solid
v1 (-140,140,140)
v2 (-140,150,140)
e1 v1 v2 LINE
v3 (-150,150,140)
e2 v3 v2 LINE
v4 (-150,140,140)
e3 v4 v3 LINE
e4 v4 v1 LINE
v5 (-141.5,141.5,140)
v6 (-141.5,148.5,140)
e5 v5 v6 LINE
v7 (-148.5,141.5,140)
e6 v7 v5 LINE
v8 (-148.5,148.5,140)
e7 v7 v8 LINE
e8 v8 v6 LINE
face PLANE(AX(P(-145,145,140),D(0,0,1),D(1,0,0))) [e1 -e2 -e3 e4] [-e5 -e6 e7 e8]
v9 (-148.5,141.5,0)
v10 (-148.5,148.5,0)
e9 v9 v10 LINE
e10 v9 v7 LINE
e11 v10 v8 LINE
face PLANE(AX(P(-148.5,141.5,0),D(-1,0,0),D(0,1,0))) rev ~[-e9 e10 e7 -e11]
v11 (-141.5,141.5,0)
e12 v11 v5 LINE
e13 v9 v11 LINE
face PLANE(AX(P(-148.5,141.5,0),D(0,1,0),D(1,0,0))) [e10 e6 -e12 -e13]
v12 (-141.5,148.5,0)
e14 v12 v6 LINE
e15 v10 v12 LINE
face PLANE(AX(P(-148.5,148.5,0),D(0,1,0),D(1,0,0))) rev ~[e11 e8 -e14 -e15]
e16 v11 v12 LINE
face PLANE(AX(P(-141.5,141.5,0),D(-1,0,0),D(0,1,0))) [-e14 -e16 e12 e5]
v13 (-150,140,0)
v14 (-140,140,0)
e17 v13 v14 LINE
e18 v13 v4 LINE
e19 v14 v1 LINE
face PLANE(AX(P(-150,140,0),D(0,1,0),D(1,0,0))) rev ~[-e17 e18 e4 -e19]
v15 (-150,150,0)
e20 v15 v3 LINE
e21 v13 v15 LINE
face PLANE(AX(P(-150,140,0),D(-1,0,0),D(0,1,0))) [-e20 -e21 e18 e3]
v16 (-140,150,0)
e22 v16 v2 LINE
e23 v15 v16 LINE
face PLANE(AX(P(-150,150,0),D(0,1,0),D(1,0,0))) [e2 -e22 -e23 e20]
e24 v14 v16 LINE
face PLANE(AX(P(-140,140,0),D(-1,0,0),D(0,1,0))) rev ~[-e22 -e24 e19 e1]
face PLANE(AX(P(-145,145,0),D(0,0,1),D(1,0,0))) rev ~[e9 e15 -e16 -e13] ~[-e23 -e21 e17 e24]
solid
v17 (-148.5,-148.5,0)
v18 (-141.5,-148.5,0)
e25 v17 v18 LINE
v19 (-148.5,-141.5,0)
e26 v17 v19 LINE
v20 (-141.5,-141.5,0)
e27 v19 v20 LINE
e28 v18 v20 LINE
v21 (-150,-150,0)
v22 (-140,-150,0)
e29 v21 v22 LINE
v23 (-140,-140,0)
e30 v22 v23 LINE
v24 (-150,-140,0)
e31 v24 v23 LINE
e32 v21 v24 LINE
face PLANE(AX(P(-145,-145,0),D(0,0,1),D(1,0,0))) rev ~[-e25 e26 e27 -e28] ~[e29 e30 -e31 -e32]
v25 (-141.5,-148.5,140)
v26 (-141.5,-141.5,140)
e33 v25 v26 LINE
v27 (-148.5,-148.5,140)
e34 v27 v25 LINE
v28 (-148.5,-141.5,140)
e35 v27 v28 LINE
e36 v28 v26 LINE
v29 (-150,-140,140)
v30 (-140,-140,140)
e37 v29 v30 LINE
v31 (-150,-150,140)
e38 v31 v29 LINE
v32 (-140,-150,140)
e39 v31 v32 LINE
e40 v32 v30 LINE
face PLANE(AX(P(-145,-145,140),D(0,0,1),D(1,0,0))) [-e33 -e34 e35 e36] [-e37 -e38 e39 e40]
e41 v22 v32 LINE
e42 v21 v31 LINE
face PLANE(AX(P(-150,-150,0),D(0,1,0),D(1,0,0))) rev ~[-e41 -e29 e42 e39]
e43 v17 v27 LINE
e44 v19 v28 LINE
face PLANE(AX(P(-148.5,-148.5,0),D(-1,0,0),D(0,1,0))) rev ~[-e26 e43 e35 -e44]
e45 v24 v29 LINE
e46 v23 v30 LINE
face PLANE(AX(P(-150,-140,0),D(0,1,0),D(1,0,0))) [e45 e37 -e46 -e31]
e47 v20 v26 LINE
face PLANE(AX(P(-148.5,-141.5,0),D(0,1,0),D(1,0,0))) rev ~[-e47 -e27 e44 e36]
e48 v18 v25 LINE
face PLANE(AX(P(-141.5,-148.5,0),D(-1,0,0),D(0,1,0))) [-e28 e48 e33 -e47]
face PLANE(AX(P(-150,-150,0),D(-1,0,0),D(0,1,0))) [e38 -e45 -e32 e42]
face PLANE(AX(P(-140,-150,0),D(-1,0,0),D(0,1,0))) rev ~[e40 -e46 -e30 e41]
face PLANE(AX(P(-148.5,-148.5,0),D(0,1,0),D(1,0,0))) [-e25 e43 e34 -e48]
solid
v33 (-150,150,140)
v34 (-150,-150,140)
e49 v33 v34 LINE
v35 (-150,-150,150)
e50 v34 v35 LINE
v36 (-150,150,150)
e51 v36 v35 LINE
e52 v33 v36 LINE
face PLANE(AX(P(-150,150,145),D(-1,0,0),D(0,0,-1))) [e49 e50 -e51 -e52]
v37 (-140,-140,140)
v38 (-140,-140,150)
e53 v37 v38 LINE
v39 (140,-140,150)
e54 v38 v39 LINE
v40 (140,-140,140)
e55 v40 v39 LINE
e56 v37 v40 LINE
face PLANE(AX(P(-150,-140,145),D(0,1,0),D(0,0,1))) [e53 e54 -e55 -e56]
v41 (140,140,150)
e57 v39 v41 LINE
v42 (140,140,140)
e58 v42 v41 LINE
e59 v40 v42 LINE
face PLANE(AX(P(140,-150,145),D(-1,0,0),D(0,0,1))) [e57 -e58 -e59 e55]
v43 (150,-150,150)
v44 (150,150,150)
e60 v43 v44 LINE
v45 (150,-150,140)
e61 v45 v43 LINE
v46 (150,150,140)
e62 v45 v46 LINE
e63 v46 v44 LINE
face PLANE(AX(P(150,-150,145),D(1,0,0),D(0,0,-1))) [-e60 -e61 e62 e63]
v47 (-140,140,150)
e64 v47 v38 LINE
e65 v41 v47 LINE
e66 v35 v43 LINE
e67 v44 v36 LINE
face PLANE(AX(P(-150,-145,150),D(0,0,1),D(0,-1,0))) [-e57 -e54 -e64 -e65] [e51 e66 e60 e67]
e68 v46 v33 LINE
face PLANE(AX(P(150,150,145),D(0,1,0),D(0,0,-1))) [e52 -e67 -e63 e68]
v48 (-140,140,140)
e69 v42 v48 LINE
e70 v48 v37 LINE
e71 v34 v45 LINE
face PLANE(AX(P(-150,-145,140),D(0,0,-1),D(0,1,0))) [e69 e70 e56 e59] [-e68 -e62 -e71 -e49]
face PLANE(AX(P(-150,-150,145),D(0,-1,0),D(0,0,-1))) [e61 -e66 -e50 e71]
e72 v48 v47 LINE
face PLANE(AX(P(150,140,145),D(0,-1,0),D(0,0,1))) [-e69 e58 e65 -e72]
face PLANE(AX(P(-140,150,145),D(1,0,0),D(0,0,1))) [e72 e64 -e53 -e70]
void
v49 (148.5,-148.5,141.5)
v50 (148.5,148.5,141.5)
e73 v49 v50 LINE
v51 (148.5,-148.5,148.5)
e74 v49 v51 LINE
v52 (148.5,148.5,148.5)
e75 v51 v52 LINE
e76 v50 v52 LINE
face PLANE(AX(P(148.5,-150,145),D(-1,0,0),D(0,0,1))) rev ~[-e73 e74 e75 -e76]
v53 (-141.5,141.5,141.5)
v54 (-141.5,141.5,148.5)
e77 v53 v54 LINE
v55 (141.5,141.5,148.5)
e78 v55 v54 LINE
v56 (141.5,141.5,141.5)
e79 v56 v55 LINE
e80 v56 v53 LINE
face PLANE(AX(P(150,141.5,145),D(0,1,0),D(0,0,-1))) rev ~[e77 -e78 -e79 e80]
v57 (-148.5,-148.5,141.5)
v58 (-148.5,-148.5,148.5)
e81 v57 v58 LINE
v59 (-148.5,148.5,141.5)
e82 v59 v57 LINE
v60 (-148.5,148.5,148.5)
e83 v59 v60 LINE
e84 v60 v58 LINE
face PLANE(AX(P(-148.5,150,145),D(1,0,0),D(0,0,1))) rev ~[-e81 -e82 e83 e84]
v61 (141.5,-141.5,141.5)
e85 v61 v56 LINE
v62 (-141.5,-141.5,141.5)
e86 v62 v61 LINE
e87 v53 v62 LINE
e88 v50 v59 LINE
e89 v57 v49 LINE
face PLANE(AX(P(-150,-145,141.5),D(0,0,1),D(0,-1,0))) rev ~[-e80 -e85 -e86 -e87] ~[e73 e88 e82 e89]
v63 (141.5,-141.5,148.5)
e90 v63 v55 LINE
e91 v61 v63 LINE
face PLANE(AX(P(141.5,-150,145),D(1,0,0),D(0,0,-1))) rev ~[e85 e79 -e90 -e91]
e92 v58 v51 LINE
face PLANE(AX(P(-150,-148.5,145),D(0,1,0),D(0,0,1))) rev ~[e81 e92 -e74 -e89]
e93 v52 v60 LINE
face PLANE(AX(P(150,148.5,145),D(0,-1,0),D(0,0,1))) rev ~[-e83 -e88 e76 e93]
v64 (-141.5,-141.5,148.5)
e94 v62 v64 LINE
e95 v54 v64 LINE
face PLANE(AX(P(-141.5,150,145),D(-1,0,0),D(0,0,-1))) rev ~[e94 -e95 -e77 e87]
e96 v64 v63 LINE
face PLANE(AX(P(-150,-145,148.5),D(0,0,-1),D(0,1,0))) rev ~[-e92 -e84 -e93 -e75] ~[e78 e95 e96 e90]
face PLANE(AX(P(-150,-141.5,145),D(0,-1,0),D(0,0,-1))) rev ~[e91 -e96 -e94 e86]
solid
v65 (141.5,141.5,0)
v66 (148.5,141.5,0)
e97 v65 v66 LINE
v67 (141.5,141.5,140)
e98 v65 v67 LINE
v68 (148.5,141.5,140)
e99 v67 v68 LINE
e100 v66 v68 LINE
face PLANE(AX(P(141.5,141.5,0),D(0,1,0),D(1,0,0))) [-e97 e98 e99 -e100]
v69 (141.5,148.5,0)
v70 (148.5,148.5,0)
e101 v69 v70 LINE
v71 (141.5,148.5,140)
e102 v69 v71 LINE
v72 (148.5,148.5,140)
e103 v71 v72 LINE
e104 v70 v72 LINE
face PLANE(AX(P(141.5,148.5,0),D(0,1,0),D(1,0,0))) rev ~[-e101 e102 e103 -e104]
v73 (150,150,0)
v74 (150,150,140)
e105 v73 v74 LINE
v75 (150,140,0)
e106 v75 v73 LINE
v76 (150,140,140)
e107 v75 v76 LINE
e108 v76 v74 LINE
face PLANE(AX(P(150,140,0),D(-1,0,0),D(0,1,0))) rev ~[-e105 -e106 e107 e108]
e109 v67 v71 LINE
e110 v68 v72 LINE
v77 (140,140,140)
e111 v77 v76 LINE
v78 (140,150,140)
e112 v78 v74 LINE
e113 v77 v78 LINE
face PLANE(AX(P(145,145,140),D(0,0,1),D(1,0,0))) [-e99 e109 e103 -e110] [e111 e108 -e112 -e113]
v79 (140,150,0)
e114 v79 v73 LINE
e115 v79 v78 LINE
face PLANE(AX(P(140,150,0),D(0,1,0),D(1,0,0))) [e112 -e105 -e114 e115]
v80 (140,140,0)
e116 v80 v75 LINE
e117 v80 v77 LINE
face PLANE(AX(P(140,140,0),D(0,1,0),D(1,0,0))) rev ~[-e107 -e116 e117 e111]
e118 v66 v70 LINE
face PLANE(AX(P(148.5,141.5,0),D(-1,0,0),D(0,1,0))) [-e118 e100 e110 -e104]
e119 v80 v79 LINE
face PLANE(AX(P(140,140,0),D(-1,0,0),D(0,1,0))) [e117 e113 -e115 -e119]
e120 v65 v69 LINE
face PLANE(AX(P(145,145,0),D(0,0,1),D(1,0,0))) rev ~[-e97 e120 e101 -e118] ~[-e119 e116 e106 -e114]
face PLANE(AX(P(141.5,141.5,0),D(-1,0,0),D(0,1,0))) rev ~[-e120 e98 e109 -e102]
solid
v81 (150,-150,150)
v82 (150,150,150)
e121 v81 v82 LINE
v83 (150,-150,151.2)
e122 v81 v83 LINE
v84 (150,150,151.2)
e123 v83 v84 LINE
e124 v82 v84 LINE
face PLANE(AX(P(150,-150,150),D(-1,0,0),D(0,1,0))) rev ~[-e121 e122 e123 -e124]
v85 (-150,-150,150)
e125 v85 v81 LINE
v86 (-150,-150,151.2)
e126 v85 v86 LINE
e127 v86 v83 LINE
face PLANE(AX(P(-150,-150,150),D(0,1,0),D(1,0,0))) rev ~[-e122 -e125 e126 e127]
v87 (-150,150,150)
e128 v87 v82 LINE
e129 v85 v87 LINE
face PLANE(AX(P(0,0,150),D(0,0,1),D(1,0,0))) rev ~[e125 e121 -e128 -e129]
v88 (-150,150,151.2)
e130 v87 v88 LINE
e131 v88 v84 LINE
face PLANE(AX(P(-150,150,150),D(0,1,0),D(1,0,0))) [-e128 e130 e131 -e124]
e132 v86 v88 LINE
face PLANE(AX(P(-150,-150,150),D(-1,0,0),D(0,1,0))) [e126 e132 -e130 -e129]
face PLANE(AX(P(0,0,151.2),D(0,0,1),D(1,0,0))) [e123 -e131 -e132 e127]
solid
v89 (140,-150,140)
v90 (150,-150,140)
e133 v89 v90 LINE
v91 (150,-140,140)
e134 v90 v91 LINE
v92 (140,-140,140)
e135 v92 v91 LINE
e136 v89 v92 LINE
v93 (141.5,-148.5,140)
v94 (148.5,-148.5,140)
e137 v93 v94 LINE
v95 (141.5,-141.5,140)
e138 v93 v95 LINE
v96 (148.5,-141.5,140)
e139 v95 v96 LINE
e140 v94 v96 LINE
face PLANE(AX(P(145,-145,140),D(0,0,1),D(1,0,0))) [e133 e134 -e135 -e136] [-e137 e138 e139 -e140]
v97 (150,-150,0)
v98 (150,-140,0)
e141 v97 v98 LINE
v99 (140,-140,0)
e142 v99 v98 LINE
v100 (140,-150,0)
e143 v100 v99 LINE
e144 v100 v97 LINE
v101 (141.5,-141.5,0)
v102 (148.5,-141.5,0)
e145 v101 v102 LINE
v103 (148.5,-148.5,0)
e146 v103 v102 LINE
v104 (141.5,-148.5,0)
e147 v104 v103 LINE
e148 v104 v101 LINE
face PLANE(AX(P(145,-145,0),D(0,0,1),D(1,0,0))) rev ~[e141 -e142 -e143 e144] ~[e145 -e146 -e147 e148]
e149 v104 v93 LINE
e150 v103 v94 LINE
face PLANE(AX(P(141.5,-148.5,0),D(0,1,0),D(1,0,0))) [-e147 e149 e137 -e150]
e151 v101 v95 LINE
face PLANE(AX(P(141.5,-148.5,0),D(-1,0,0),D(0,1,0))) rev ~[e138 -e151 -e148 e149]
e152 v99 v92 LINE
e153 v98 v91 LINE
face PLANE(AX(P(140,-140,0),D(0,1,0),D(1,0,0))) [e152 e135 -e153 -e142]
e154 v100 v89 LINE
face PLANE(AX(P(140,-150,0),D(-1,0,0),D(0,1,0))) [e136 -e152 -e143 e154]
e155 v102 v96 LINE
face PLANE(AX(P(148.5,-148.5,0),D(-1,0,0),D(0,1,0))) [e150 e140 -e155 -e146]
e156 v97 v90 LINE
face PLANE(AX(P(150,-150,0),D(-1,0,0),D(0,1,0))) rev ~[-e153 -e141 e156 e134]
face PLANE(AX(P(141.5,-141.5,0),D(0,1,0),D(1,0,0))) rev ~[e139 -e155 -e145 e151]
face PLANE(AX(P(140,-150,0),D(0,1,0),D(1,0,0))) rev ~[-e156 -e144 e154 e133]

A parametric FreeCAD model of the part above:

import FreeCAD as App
import Part
import Sketcher
from FreeCAD import Vector


def add_polygon(sketch, points):
    """Adds a closed chain of lines whose ends are joined by coincident constraints."""
    first, n = sketch.GeometryCount, len(points)
    for a, b in zip(points, points[1:] + points[:1]):
        sketch.addGeometry(Part.LineSegment(App.Vector(*a, 0), App.Vector(*b, 0)), False)
    for i in range(n):
        sketch.addConstraint(Sketcher.Constraint("Coincident", first + i, 2, first + (i + 1) % n, 1))

doc = App.newDocument("Part")
body = doc.addObject("PartDesign::Body", "Body")

# Sketch on XY plane
sketch1 = body.newObject("Sketcher::SketchObject", "Sketch")
sketch1.AttachmentSupport = (doc.getObject("XY_Plane"), [""])
sketch1.MapMode = "FlatFace"
add_polygon(sketch1, [(-150, 150), (-150, 140), (-140, 140), (-140, 150)])  # lines 0-3
add_polygon(sketch1, [(-142, 142), (-148, 142), (-148, 148), (-142, 148)])  # lines 4-7
sketch1.addConstraint([
    Sketcher.Constraint("Vertical", 0),
    Sketcher.Constraint("Horizontal", 1),
    Sketcher.Constraint("Vertical", 2),
    Sketcher.Constraint("Horizontal", 3),
    Sketcher.Constraint("Horizontal", 4),
    Sketcher.Constraint("Vertical", 5),
    Sketcher.Constraint("Horizontal", 6),
    Sketcher.Constraint("Vertical", 7),
    Sketcher.Constraint("Equal", 3, 0),
    Sketcher.Constraint("Equal", 6, 5),
    Sketcher.Constraint("DistanceX", 1, 1, 1, 2, 10.0),
    Sketcher.Constraint("DistanceX", 4, 2, 4, 1, 7.0),
    Sketcher.Constraint("DistanceX", 0, 2, -1, 1, 150.0),
    Sketcher.Constraint("DistanceY", -1, 1, 0, 2, 140.0),
    Sketcher.Constraint("DistanceX", 4, 2, -1, 1, 148.5),
    Sketcher.Constraint("DistanceY", -1, 1, 4, 2, 141.5),
])
pad1 = body.newObject("PartDesign::Pad", "Pad")
pad1.Profile = sketch1
pad1.Length = 140
body2 = doc.addObject("PartDesign::Body", "Body001")

# Sketch on XY plane
sketch2 = body2.newObject("Sketcher::SketchObject", "Sketch001")
sketch2.AttachmentSupport = (doc.getObject("XY_Plane001"), [""])
sketch2.MapMode = "FlatFace"
add_polygon(sketch2, [(140, 150), (140, 140), (150, 140), (150, 150)])  # lines 0-3
add_polygon(sketch2, [(148, 142), (142, 142), (142, 148), (148, 148)])  # lines 4-7
sketch2.addConstraint([
    Sketcher.Constraint("Vertical", 0),
    Sketcher.Constraint("Horizontal", 1),
    Sketcher.Constraint("Vertical", 2),
    Sketcher.Constraint("Horizontal", 3),
    Sketcher.Constraint("Horizontal", 4),
    Sketcher.Constraint("Vertical", 5),
    Sketcher.Constraint("Horizontal", 6),
    Sketcher.Constraint("Vertical", 7),
    Sketcher.Constraint("Equal", 3, 0),
    Sketcher.Constraint("Equal", 6, 5),
    Sketcher.Constraint("DistanceX", 1, 1, 1, 2, 10.0),
    Sketcher.Constraint("DistanceX", 4, 2, 4, 1, 7.0),
    Sketcher.Constraint("DistanceX", -1, 1, 0, 2, 140.0),
    Sketcher.Constraint("DistanceY", -1, 1, 0, 2, 140.0),
    Sketcher.Constraint("DistanceX", -1, 1, 4, 2, 141.5),
    Sketcher.Constraint("DistanceY", -1, 1, 4, 2, 141.5),
])
pad2 = body2.newObject("PartDesign::Pad", "Pad001")
pad2.Profile = sketch2
pad2.Length = 140
body3 = doc.addObject("PartDesign::Body", "Body002")

# Sketch on XY plane
sketch3 = body3.newObject("Sketcher::SketchObject", "Sketch002")
sketch3.AttachmentSupport = (doc.getObject("XY_Plane002"), [""])
sketch3.MapMode = "FlatFace"
add_polygon(sketch3, [(140, -140), (140, -150), (150, -150), (150, -140)])  # lines 0-3
add_polygon(sketch3, [(148, -148), (142, -148), (142, -142), (148, -142)])  # lines 4-7
sketch3.addConstraint([
    Sketcher.Constraint("Vertical", 0),
    Sketcher.Constraint("Horizontal", 1),
    Sketcher.Constraint("Vertical", 2),
    Sketcher.Constraint("Horizontal", 3),
    Sketcher.Constraint("Horizontal", 4),
    Sketcher.Constraint("Vertical", 5),
    Sketcher.Constraint("Horizontal", 6),
    Sketcher.Constraint("Vertical", 7),
    Sketcher.Constraint("Equal", 3, 0),
    Sketcher.Constraint("Equal", 6, 5),
    Sketcher.Constraint("DistanceX", 1, 1, 1, 2, 10.0),
    Sketcher.Constraint("DistanceX", 4, 2, 4, 1, 7.0),
    Sketcher.Constraint("DistanceX", -1, 1, 0, 2, 140.0),
    Sketcher.Constraint("DistanceY", 0, 2, -1, 1, 150.0),
    Sketcher.Constraint("DistanceX", -1, 1, 4, 2, 141.5),
    Sketcher.Constraint("DistanceY", 4, 2, -1, 1, 148.5),
])
pad3 = body3.newObject("PartDesign::Pad", "Pad002")
pad3.Profile = sketch3
pad3.Length = 140
body4 = doc.addObject("PartDesign::Body", "Body003")

# Sketch on XY plane
sketch4 = body4.newObject("Sketcher::SketchObject", "Sketch003")
sketch4.AttachmentSupport = (doc.getObject("XY_Plane003"), [""])
sketch4.MapMode = "FlatFace"
add_polygon(sketch4, [(-150, -140), (-150, -150), (-140, -150), (-140, -140)])  # lines 0-3
add_polygon(sketch4, [(-142, -148), (-148, -148), (-148, -142), (-142, -142)])  # lines 4-7
sketch4.addConstraint([
    Sketcher.Constraint("Vertical", 0),
    Sketcher.Constraint("Horizontal", 1),
    Sketcher.Constraint("Vertical", 2),
    Sketcher.Constraint("Horizontal", 3),
    Sketcher.Constraint("Horizontal", 4),
    Sketcher.Constraint("Vertical", 5),
    Sketcher.Constraint("Horizontal", 6),
    Sketcher.Constraint("Vertical", 7),
    Sketcher.Constraint("Equal", 3, 0),
    Sketcher.Constraint("Equal", 6, 5),
    Sketcher.Constraint("DistanceX", 1, 1, 1, 2, 10.0),
    Sketcher.Constraint("DistanceX", 4, 2, 4, 1, 7.0),
    Sketcher.Constraint("DistanceX", 0, 2, -1, 1, 150.0),
    Sketcher.Constraint("DistanceY", 0, 2, -1, 1, 150.0),
    Sketcher.Constraint("DistanceX", 4, 2, -1, 1, 148.5),
    Sketcher.Constraint("DistanceY", 4, 2, -1, 1, 148.5),
])
pad4 = body4.newObject("PartDesign::Pad", "Pad003")
pad4.Profile = sketch4
pad4.Length = 140
body5 = doc.addObject("PartDesign::Body", "Body004")

# Sketch on YZ plane
sketch5 = body5.newObject("Sketcher::SketchObject", "Sketch004")
sketch5.AttachmentSupport = (doc.getObject("YZ_Plane004"), [""])
sketch5.MapMode = "FlatFace"
add_polygon(sketch5, [(-150, 150), (-150, 140), (-140, 140), (-140, 150)])  # lines 0-3
add_polygon(sketch5, [(-142, 142), (-148, 142), (-148, 148), (-142, 148)])  # lines 4-7
sketch5.addConstraint([
    Sketcher.Constraint("Vertical", 0),
    Sketcher.Constraint("Horizontal", 1),
    Sketcher.Constraint("Vertical", 2),
    Sketcher.Constraint("Horizontal", 3),
    Sketcher.Constraint("Horizontal", 4),
    Sketcher.Constraint("Vertical", 5),
    Sketcher.Constraint("Horizontal", 6),
    Sketcher.Constraint("Vertical", 7),
    Sketcher.Constraint("Equal", 3, 0),
    Sketcher.Constraint("Equal", 6, 5),
    Sketcher.Constraint("DistanceX", 1, 1, 1, 2, 10.0),
    Sketcher.Constraint("DistanceX", 4, 2, 4, 1, 7.0),
    Sketcher.Constraint("DistanceX", 0, 2, -1, 1, 150.0),
    Sketcher.Constraint("DistanceY", -1, 1, 0, 2, 140.0),
    Sketcher.Constraint("DistanceX", 4, 2, -1, 1, 148.5),
    Sketcher.Constraint("DistanceY", -1, 1, 4, 2, 141.5),
])

# Sketch on XY plane
sketch6 = body5.newObject("Sketcher::SketchObject", "Sketch005")
sketch6.AttachmentSupport = (doc.getObject("XY_Plane004"), [""])
sketch6.MapMode = "FlatFace"
sketch6.AttachmentOffset = App.Placement(Vector(0, 0, 140), App.Rotation())
add_polygon(sketch6, [(-150, -150), (150, -150), (150, 150), (-150, 150)])  # lines 0-3
sketch6.addConstraint([
    Sketcher.Constraint("Horizontal", 0),
    Sketcher.Constraint("Vertical", 1),
    Sketcher.Constraint("Horizontal", 2),
    Sketcher.Constraint("Vertical", 3),
    Sketcher.Constraint("Symmetric", 0, 2, 2, 2, -1, 1),
    Sketcher.Constraint("Equal", 2, 1),
    Sketcher.Constraint("DistanceX", 0, 1, 0, 2, 300.0),
])
doc.recompute()

additivepipe = body5.newObject("PartDesign::AdditivePipe", "AdditivePipe")
additivepipe.Profile = sketch5
additivepipe.Spine = (sketch6, ["Edge1", "Edge2", "Edge3", "Edge4"])
additivepipe.Transition = "Right corner"
body6 = doc.addObject("PartDesign::Body", "Body005")

# Sketch on XY plane
sketch7 = body6.newObject("Sketcher::SketchObject", "Sketch006")
sketch7.AttachmentSupport = (doc.getObject("XY_Plane005"), [""])
sketch7.MapMode = "FlatFace"
sketch7.AttachmentOffset = App.Placement(Vector(0, 0, 150), App.Rotation())
add_polygon(sketch7, [(-150, 150), (-150, -150), (150, -150), (150, 150)])  # lines 0-3
sketch7.addConstraint([
    Sketcher.Constraint("Vertical", 0),
    Sketcher.Constraint("Horizontal", 1),
    Sketcher.Constraint("Vertical", 2),
    Sketcher.Constraint("Horizontal", 3),
    Sketcher.Constraint("Symmetric", 0, 2, 2, 2, -1, 1),
    Sketcher.Constraint("Equal", 3, 0),
    Sketcher.Constraint("DistanceX", 1, 1, 1, 2, 300.0),
])
pad5 = body6.newObject("PartDesign::Pad", "Pad004")
pad5.Profile = sketch7
pad5.Length = 1.2

doc.recompute()
